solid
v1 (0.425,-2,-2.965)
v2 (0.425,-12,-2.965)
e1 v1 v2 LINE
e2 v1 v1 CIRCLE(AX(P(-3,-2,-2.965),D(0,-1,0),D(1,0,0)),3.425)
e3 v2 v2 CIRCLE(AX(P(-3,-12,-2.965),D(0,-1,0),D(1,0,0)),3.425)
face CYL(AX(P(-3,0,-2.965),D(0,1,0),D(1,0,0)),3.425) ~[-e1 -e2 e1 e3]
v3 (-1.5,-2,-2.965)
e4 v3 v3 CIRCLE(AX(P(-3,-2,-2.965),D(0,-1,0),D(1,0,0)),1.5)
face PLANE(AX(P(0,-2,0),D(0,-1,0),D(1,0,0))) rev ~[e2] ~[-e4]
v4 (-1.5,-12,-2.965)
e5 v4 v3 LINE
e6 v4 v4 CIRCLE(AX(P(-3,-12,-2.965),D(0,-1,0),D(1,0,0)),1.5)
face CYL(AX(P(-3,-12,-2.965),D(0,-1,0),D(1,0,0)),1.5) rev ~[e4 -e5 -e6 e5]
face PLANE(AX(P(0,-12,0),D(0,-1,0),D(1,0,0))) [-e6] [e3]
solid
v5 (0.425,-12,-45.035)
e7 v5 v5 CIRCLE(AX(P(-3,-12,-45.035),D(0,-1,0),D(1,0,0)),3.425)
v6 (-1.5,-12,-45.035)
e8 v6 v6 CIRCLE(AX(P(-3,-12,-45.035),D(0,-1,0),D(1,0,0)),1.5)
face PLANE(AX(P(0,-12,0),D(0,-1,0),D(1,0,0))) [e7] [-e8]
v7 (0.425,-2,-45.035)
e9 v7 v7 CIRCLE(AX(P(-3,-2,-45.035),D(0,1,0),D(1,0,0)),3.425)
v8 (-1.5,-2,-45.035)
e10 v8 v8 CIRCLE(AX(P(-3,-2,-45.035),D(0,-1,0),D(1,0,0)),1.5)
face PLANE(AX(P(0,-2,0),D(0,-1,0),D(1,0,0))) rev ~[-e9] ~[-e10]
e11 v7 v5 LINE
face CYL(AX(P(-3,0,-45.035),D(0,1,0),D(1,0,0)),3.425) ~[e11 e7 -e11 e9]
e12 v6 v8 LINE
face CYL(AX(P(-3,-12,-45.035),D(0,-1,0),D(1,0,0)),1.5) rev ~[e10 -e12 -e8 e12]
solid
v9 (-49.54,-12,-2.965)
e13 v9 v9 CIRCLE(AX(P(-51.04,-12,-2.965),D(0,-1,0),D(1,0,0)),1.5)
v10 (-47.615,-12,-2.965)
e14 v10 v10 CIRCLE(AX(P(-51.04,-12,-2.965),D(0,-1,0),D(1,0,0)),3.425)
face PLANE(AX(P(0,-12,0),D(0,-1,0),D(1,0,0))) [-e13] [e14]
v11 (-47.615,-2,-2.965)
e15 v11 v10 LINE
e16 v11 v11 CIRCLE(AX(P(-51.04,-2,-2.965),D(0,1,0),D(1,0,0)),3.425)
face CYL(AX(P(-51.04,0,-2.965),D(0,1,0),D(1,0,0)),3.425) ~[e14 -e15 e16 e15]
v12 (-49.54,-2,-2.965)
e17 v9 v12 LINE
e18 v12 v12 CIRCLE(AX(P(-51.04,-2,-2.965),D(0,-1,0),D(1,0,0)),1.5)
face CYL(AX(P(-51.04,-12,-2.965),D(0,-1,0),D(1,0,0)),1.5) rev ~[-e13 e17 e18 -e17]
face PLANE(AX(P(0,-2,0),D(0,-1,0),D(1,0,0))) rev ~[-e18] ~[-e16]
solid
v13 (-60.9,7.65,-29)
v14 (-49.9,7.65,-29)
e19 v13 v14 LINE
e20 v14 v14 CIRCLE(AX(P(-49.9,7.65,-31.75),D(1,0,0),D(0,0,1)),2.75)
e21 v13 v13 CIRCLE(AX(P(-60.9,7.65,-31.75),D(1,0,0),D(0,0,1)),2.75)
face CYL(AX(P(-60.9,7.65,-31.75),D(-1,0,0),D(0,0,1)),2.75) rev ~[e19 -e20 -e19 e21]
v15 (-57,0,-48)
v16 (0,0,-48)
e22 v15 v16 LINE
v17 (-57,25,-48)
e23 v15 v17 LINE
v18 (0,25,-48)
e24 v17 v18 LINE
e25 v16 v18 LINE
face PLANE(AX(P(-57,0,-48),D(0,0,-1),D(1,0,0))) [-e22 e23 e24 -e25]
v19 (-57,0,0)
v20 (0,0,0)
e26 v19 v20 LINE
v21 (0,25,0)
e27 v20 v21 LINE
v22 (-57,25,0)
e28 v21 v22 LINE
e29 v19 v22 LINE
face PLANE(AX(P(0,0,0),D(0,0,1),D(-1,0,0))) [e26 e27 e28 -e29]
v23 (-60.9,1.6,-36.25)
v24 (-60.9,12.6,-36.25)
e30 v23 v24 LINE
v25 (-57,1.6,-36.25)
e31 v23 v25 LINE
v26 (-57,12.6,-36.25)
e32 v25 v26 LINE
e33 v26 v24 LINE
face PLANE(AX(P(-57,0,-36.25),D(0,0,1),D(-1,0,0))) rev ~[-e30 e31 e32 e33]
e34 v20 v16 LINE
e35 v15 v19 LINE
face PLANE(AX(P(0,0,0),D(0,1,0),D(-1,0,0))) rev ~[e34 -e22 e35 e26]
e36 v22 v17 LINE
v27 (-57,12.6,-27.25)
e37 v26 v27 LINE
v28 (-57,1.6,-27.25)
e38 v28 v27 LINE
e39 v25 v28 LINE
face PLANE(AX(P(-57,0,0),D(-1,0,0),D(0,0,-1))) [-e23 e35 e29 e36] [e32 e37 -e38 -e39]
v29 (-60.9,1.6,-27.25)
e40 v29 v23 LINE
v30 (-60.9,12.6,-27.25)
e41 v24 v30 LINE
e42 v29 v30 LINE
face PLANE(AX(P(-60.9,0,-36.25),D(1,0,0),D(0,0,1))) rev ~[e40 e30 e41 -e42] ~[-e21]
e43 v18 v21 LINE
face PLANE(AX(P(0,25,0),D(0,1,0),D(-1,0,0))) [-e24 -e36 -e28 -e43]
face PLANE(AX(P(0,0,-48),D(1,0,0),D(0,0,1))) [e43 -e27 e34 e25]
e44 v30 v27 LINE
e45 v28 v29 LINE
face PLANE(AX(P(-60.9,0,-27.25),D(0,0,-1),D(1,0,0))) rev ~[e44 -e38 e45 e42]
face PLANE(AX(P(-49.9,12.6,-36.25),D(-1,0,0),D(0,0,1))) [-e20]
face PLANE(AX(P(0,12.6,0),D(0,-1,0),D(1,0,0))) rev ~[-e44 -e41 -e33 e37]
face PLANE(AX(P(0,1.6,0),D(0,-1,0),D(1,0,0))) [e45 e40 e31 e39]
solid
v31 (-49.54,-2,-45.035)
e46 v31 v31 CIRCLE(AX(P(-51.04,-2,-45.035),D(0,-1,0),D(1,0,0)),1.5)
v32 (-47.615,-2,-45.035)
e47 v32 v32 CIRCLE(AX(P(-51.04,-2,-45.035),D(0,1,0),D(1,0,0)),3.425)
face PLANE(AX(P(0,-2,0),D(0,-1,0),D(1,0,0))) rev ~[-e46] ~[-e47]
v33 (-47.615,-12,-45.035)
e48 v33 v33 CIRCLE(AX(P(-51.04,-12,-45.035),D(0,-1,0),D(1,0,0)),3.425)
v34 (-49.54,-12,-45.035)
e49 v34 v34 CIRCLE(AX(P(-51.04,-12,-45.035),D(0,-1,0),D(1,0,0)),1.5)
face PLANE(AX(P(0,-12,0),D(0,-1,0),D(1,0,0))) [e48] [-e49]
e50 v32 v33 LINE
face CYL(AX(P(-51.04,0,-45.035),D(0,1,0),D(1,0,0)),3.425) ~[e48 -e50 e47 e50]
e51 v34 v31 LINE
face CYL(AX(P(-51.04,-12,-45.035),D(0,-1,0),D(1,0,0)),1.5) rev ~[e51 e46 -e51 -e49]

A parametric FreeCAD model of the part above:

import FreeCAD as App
import Part
import Sketcher
from FreeCAD import Vector
Q = App.Units.Quantity


def add_polygon(sketch, points):
    """Adds a closed chain of lines whose ends are joined by coincident constraints."""
    first, n = sketch.GeometryCount, len(points)
    for a, b in zip(points, points[1:] + points[:1]):
        sketch.addGeometry(Part.LineSegment(App.Vector(*a, 0), App.Vector(*b, 0)), False)
    for i in range(n):
        sketch.addConstraint(Sketcher.Constraint("Coincident", first + i, 2, first + (i + 1) % n, 1))

doc = App.newDocument("Part")
body = doc.addObject("PartDesign::Body", "Body")
body.AllowCompound = True

sketch1 = body.newObject("Sketcher::SketchObject", "Sketch")
sketch1.AttachmentSupport = (doc.getObject("XZ_Plane"), [""])
sketch1.MapMode = "FlatFace"
add_polygon(sketch1, [(-57, 0), (0, 0), (0, -48), (-57, -48)])
sketch1.addConstraint([
    Sketcher.Constraint("Horizontal", 0),
    Sketcher.Constraint("Vertical", 1),
    Sketcher.Constraint("Horizontal", 2),
    Sketcher.Constraint("Vertical", 3),
    Sketcher.Constraint("Coincident", 0, 2, -1, 1),
    Sketcher.Constraint("DistanceX", 0, 1, 0, 2, Q("57 mm")),
    Sketcher.Constraint("DistanceY", 1, 2, 1, 1, Q("48 mm")),
])
pad1 = body.newObject("PartDesign::Pad", "Pad")
pad1.Profile = sketch1
pad1.Length = 25
pad1.Reversed = True

sketch2 = body.newObject("Sketcher::SketchObject", "Sketch001")
sketch2.AttachmentSupport = (doc.getObject("XZ_Plane"), [""])
sketch2.MapMode = "FlatFace"
sketch2.addGeometry([
    Part.Circle(Vector(-3, -3, 0), Vector(0, 0, 1), 3.4),
    Part.Circle(Vector(-3, -45, 0), Vector(0, 0, 1), 3.4),
    Part.Circle(Vector(-51, -45, 0), Vector(0, 0, 1), 3.4),
    Part.Circle(Vector(-51, -3, 0), Vector(0, 0, 1), 3.4),
], False)
sketch2.addConstraint([
    Sketcher.Constraint("Equal", 0, 1),
    Sketcher.Constraint("Equal", 1, 2),
    Sketcher.Constraint("Equal", 2, 3),
    Sketcher.Constraint("Horizontal", 1, 3, 2, 3),
    Sketcher.Constraint("Horizontal", 0, 3, 3, 3),
    Sketcher.Constraint("Vertical", 0, 3, 1, 3),
    Sketcher.Constraint("Vertical", 2, 3, 3, 3),
    Sketcher.Constraint("Diameter", 0, Q("6.85 mm")),
    Sketcher.Constraint("DistanceX", 0, 3, -1, 1, Q("3 mm")),
    Sketcher.Constraint("DistanceX", 2, 3, -1, 1, Q("51.04 mm")),
    Sketcher.Constraint("DistanceY", 1, 3, 0, 3, Q("42.07 mm")),
    Sketcher.Constraint("DistanceY", 0, 3, -1, 1, Q("2.965 mm")),
])
pad2 = body.newObject("PartDesign::Pad", "Pad001")
pad2.Profile = sketch2
pad2.Length = 12

sketch3 = body.newObject("Sketcher::SketchObject", "Sketch002")
sketch3.AttachmentSupport = (doc.getObject("XZ_Plane"), [""])
sketch3.MapMode = "FlatFace"
add_polygon(sketch3, [(-60.9, -36.2), (-57, -36.2), (-57, -27.2), (-60.9, -27.2)])
sketch3.addConstraint([
    Sketcher.Constraint("Horizontal", 0),
    Sketcher.Constraint("Vertical", 1),
    Sketcher.Constraint("Horizontal", 2),
    Sketcher.Constraint("Vertical", 3),
    Sketcher.Constraint("DistanceY", 1, 1, 1, 2, Q("9 mm")),
    Sketcher.Constraint("DistanceX", 0, 1, 0, 2, Q("3.9 mm")),
    Sketcher.Constraint("DistanceX", 0, 2, -1, 1, Q("57 mm")),
    Sketcher.Constraint("DistanceY", 0, 2, -1, 1, Q("36.25 mm")),
])
pad3 = body.newObject("PartDesign::Pad", "Pad002")
pad3.Profile = sketch3
pad3.Length = 12.6
pad3.Reversed = True

sketch4 = body.newObject("Sketcher::SketchObject", "Sketch003")
sketch4.AttachmentSupport = (doc.getObject("XZ_Plane"), [""])
sketch4.MapMode = "FlatFace"
add_polygon(sketch4, [(-57, -27.2), (-60.9, -27.2), (-60.9, -36.2), (-57, -36.2)])
sketch4.addConstraint([
    Sketcher.Constraint("Horizontal", 0),
    Sketcher.Constraint("Vertical", 1),
    Sketcher.Constraint("Horizontal", 2),
    Sketcher.Constraint("Vertical", 3),
    Sketcher.Constraint("DistanceY", 1, 2, 1, 1, Q("9 mm")),
    Sketcher.Constraint("DistanceX", 0, 2, 0, 1, Q("3.9 mm")),
    Sketcher.Constraint("DistanceX", 2, 2, -1, 1, Q("57 mm")),
    Sketcher.Constraint("DistanceY", 0, 2, -1, 1, Q("27.25 mm")),
])
pocket1 = body.newObject("PartDesign::Pocket", "Pocket")
pocket1.Profile = sketch4
pocket1.Length = 1.6

sketch5 = body.newObject("Sketcher::SketchObject", "Sketch004")
sketch5.AttachmentSupport = (doc.getObject("YZ_Plane"), [""])
sketch5.MapMode = "FlatFace"
sketch5.AttachmentOffset = App.Placement(Vector(0, 0, -60.9), App.Rotation())
sketch5.addGeometry(Part.Circle(Vector(7.7, -31.8, 0), Vector(0, 0, 1), 2.8), False)
sketch5.addConstraint([
    Sketcher.Constraint("Diameter", 0, Q("5.5 mm")),
    Sketcher.Constraint("DistanceX", -1, 1, 0, 3, Q("7.65 mm")),
    Sketcher.Constraint("DistanceY", 0, 3, -1, 1, Q("31.75 mm")),
])
pocket2 = body.newObject("PartDesign::Pocket", "Pocket001")
pocket2.Profile = sketch5
pocket2.Length = 11
pocket2.Reversed = True

sketch6 = body.newObject("Sketcher::SketchObject", "Sketch005")
sketch6.AttachmentSupport = (doc.getObject("XZ_Plane"), [""])
sketch6.MapMode = "FlatFace"
sketch6.AttachmentOffset = App.Placement(Vector(0, 0, 12), App.Rotation())
sketch6.addGeometry([
    Part.Circle(Vector(-3, -45, 0), Vector(0, 0, 1), 1.5),
    Part.Circle(Vector(-51, -45, 0), Vector(0, 0, 1), 1.5),
    Part.Circle(Vector(-3, -3, 0), Vector(0, 0, 1), 1.5),
    Part.Circle(Vector(-51, -3, 0), Vector(0, 0, 1), 1.5),
], False)
sketch6.addConstraint([
    Sketcher.Constraint("Equal", 0, 1),
    Sketcher.Constraint("Equal", 1, 2),
    Sketcher.Constraint("Equal", 2, 3),
    Sketcher.Constraint("Horizontal", 0, 3, 1, 3),
    Sketcher.Constraint("Horizontal", 2, 3, 3, 3),
    Sketcher.Constraint("Vertical", 0, 3, 2, 3),
    Sketcher.Constraint("Vertical", 1, 3, 3, 3),
    Sketcher.Constraint("Diameter", 0, Q("3 mm")),
    Sketcher.Constraint("DistanceX", 0, 3, -1, 1, Q("3 mm")),
    Sketcher.Constraint("DistanceX", 1, 3, -1, 1, Q("51.04 mm")),
    Sketcher.Constraint("DistanceY", 0, 3, 2, 3, Q("42.07 mm")),
    Sketcher.Constraint("DistanceY", 0, 3, -1, 1, Q("45.035 mm")),
])
pocket3 = body.newObject("PartDesign::Pocket", "Pocket002")
pocket3.Profile = sketch6
pocket3.Length = 10

sketch7 = body.newObject("Sketcher::SketchObject", "Sketch006")
sketch7.AttachmentSupport = (doc.getObject("XZ_Plane"), [""])
sketch7.MapMode = "FlatFace"
sketch7.addGeometry([
    Part.Circle(Vector(-3, -3, 0), Vector(0, 0, 1), 3.4),
    Part.Circle(Vector(-3, -45, 0), Vector(0, 0, 1), 3.7),
    Part.Circle(Vector(-51, -45, 0), Vector(0, 0, 1), 4.2),
    Part.Circle(Vector(-51, -3, 0), Vector(0, 0, 1), 4.4),
], False)
sketch7.addConstraint([
    Sketcher.Constraint("Horizontal", 1, 3, 2, 3),
    Sketcher.Constraint("Horizontal", 0, 3, 3, 3),
    Sketcher.Constraint("Vertical", 0, 3, 1, 3),
    Sketcher.Constraint("Vertical", 2, 3, 3, 3),
    Sketcher.Constraint("Diameter", 0, Q("6.85 mm")),
    Sketcher.Constraint("DistanceX", 0, 3, -1, 1, Q("3 mm")),
    Sketcher.Constraint("Diameter", 1, Q("7.4782 mm")),
    Sketcher.Constraint("Diameter", 2, Q("8.3506 mm")),
    Sketcher.Constraint("Diameter", 3, Q("8.8732 mm")),
    Sketcher.Constraint("DistanceX", 2, 3, -1, 1, Q("51.04 mm")),
    Sketcher.Constraint("DistanceY", 1, 3, 0, 3, Q("42.07 mm")),
    Sketcher.Constraint("DistanceY", 0, 3, -1, 1, Q("2.965 mm")),
])
pocket4 = body.newObject("PartDesign::Pocket", "Pocket003")
pocket4.Profile = sketch7
pocket4.Length = 2
pocket4.Reversed = True

doc.recompute()
